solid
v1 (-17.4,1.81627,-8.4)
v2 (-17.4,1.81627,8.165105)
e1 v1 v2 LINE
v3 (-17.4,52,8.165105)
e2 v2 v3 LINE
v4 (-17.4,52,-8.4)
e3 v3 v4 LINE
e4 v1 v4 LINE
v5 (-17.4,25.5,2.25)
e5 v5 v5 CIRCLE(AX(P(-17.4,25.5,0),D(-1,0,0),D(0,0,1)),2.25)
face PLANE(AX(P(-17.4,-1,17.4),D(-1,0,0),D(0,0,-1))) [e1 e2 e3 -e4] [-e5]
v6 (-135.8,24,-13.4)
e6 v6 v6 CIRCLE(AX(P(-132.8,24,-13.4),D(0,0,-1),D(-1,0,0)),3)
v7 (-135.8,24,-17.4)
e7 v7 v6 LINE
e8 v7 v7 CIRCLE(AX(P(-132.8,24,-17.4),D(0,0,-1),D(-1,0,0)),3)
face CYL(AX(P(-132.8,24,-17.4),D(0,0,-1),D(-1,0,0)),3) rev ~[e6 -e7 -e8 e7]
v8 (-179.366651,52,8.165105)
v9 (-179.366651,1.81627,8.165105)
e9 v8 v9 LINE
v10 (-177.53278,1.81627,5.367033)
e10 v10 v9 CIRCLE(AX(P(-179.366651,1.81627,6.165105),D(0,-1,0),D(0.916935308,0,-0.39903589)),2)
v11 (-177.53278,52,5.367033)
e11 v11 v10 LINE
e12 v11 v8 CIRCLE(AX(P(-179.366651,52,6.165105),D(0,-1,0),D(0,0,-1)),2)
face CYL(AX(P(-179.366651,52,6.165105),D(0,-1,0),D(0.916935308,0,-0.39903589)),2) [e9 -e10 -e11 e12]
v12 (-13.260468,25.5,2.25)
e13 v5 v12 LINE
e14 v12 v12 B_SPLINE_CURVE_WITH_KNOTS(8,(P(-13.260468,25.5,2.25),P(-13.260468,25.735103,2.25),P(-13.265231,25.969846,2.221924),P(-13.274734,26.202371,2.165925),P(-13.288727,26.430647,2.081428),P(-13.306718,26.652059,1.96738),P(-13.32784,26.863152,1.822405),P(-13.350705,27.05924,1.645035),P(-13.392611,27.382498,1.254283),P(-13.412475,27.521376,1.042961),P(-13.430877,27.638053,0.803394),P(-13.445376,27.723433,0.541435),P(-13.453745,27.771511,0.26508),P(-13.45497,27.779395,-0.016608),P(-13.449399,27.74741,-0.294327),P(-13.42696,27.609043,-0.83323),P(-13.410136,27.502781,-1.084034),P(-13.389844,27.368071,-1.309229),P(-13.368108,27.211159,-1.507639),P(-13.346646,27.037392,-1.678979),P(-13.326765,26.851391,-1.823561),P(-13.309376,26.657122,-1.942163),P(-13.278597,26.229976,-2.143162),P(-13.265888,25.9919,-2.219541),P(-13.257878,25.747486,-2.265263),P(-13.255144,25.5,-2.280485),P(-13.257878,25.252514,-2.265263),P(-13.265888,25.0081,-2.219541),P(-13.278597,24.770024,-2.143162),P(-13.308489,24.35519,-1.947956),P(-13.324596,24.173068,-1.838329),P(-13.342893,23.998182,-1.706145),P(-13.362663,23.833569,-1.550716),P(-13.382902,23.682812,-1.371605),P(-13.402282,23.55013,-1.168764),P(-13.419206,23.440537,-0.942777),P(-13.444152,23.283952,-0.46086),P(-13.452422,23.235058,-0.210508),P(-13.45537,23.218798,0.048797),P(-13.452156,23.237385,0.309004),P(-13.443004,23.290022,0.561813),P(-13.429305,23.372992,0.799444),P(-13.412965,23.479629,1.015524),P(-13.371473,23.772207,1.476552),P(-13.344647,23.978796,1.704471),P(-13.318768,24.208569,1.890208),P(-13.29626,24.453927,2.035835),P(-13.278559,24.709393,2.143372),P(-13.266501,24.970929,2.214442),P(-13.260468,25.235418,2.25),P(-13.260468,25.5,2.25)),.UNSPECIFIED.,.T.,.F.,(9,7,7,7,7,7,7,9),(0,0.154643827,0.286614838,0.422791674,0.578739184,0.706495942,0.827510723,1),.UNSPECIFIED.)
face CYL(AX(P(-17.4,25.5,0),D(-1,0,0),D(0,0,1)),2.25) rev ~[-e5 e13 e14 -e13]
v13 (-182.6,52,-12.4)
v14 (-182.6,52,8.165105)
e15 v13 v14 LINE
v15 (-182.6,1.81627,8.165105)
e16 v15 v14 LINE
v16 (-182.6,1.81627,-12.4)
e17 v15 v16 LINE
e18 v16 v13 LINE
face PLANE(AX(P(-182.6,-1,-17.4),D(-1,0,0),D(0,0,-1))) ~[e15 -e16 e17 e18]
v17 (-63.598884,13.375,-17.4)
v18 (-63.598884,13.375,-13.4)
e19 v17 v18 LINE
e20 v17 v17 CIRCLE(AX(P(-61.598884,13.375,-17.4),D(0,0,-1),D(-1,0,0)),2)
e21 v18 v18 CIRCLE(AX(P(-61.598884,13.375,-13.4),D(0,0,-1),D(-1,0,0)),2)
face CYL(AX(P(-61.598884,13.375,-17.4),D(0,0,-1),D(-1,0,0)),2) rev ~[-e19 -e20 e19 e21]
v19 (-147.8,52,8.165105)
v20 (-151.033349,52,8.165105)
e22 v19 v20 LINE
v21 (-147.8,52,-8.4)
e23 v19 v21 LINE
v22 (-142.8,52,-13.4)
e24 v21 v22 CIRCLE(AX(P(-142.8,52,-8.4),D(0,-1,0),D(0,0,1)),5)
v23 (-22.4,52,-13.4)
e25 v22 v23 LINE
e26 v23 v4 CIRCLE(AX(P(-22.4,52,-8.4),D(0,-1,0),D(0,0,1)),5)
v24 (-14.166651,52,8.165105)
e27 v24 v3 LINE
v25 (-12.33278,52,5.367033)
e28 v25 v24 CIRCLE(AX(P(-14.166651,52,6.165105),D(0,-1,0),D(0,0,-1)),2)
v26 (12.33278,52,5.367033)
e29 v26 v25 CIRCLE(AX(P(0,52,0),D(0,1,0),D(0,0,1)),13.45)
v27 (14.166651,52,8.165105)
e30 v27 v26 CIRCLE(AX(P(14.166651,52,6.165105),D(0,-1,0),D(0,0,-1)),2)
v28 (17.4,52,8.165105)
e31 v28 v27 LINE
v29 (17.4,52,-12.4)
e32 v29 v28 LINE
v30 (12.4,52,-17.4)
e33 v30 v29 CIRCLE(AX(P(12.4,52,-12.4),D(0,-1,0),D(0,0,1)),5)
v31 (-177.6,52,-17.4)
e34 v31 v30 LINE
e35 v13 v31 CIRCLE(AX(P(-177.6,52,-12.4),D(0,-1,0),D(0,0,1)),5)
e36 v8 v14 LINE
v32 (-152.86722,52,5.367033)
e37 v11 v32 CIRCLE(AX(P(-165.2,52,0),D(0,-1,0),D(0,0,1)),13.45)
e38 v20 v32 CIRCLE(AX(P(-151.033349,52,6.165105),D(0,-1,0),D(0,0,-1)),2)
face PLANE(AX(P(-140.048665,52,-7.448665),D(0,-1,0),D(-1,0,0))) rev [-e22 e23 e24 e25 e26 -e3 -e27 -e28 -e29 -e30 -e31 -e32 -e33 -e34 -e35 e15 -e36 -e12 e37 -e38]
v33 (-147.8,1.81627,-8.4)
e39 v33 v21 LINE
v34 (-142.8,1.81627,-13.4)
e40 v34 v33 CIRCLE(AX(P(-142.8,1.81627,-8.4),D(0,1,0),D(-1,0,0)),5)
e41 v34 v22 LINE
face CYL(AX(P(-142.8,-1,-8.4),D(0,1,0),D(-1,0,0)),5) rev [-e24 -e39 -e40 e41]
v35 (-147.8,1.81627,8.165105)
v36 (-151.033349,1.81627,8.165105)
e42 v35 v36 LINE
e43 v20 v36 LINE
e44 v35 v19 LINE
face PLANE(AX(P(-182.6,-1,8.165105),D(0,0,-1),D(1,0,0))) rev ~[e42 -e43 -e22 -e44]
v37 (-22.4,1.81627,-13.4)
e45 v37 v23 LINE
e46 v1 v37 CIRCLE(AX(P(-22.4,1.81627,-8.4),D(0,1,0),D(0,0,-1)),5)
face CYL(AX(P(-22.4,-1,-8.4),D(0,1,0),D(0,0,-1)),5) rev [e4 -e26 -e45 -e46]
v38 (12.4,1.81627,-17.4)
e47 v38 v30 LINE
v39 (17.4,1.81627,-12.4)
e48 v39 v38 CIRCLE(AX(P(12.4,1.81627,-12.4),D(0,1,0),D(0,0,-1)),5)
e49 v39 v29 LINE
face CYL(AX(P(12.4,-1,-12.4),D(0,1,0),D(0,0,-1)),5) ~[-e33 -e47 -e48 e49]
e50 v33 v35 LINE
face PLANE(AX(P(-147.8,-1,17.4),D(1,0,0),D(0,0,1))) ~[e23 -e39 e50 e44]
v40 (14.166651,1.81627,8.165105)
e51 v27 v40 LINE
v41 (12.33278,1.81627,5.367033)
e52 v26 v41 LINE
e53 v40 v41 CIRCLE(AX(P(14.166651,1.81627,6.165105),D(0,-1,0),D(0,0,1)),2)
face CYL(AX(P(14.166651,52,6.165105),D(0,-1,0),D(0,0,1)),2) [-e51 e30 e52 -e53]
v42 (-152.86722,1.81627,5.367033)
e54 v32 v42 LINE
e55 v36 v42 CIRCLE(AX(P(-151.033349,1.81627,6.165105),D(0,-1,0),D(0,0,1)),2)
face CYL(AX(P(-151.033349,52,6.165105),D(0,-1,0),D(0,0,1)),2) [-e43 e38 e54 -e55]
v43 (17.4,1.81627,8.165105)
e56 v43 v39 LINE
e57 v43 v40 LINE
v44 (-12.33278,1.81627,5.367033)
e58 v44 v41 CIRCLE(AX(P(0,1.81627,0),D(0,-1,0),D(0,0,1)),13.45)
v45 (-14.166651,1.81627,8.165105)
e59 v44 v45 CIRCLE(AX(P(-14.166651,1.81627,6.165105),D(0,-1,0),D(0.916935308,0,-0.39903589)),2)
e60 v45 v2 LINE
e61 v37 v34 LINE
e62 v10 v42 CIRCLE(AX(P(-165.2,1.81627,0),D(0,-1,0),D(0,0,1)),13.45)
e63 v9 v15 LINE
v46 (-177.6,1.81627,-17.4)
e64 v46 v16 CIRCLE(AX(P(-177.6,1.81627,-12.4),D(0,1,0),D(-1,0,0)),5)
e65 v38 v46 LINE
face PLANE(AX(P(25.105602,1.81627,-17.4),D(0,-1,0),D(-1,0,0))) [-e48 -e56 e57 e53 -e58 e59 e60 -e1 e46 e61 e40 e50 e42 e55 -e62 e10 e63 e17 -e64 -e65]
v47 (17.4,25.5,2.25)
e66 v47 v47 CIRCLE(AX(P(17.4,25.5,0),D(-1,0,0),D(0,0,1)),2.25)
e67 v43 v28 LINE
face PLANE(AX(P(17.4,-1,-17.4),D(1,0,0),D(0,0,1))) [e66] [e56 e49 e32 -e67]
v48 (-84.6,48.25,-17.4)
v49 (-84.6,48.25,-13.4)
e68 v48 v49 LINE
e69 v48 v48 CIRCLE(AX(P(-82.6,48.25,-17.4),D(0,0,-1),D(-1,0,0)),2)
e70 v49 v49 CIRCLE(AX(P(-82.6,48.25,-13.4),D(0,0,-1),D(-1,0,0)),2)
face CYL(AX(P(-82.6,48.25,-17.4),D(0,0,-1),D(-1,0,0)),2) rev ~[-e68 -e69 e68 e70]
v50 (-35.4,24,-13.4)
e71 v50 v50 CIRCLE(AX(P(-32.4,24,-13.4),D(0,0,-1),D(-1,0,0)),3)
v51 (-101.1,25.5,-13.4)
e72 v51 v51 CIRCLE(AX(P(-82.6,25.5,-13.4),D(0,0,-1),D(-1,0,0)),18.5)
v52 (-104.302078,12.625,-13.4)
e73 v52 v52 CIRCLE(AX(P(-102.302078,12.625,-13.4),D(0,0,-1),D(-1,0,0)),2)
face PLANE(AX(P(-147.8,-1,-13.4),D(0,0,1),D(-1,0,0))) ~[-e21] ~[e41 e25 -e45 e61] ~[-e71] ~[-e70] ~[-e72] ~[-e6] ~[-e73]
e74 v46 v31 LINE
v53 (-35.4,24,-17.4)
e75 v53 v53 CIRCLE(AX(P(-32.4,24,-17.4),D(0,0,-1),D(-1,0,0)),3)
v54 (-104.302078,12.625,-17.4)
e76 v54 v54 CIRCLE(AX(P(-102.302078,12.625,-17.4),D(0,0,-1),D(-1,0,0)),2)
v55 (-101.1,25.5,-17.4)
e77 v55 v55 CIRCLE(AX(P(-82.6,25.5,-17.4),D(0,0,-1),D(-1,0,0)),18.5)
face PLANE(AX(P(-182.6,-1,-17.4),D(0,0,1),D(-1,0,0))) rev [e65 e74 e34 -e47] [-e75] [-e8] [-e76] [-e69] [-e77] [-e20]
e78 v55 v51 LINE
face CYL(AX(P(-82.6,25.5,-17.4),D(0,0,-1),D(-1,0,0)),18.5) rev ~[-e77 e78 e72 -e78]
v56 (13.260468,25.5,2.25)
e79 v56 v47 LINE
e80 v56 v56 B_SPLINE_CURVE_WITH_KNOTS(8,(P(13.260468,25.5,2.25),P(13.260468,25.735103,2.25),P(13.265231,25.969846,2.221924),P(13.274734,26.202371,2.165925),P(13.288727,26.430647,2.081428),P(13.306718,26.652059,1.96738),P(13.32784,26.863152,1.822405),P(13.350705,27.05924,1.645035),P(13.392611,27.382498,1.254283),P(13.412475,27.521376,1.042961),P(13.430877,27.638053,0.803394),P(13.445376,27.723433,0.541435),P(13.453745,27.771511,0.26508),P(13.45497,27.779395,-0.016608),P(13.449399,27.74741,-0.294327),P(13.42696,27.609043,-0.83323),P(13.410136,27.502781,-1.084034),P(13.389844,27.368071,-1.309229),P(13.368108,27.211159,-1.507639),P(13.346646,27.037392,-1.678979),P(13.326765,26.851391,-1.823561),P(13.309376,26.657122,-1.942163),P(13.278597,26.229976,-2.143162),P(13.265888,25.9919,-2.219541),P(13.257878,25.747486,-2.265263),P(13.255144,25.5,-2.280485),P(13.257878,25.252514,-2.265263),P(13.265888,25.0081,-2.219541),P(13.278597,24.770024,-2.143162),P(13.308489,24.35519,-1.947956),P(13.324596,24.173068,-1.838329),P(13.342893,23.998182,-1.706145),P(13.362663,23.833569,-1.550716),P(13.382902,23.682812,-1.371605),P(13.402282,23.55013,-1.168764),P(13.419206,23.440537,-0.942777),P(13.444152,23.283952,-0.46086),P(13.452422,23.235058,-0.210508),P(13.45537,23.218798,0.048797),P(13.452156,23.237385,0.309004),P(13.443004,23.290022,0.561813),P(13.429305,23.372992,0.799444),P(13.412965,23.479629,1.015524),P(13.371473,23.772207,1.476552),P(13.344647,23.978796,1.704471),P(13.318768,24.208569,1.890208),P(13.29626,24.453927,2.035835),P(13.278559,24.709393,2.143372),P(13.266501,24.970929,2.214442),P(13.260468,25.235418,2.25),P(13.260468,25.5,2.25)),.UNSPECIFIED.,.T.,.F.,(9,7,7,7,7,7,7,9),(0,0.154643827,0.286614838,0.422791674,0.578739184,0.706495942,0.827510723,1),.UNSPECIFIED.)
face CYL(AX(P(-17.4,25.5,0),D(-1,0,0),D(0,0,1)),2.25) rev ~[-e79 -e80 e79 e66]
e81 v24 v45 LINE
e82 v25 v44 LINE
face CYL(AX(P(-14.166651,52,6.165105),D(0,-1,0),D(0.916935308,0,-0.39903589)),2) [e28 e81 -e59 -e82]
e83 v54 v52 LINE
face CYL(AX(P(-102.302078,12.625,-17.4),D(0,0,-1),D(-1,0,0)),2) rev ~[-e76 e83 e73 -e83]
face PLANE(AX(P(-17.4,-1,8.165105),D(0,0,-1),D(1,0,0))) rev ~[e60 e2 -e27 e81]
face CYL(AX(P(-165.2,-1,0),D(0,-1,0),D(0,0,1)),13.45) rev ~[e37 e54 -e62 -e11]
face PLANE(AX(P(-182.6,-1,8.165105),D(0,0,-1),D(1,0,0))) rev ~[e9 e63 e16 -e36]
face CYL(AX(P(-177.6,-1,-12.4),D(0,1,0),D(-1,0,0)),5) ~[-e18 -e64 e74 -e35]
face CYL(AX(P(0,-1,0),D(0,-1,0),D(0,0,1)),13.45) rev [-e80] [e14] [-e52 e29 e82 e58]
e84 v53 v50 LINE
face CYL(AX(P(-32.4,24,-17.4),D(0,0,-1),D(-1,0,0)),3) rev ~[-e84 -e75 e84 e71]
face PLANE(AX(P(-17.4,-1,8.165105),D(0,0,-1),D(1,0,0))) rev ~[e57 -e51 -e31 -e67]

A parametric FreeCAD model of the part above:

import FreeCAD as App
import Part
import Sketcher
Q = App.Units.Quantity


def edges_at(feature, points):
    """Names of the edges that pass closest to the given points."""
    edges = feature.Shape.Edges
    near = lambda p: min(range(len(edges)), key=lambda i: edges[i].distToShape(Part.Vertex(*p))[0])
    return sorted({f"Edge{near(p) + 1}" for p in points})

doc = App.newDocument("Part")
body = doc.addObject("PartDesign::Body", "Body")

# Sketch on XZ plane
sketch1 = body.newObject("Sketcher::SketchObject", "Sketch")
sketch1.AttachmentSupport = (doc.getObject("XZ_Plane"), [""])
sketch1.MapMode = "FlatFace"
sketch1.AttachmentOffset = App.Placement(App.Vector(0, 0, 1), App.Rotation())
sketch1.addGeometry(Part.LineSegment(App.Vector(17.4, -17.4, 0), App.Vector(-82.6, -17.4, 0)), False)
sketch1.addGeometry(Part.LineSegment(App.Vector(-82.6, -17.4, 0), App.Vector(-82.6, -13.4, 0)), False)
sketch1.addGeometry(Part.LineSegment(App.Vector(-82.6, -13.4, 0), App.Vector(-17.4, -13.4, 0)), False)
sketch1.addGeometry(Part.LineSegment(App.Vector(-17.4, -13.4, 0), App.Vector(-17.4, 17.4, 0)), False)
sketch1.addGeometry(Part.LineSegment(App.Vector(-17.4, 17.4, 0), App.Vector(17.4, 17.4, 0)), False)
sketch1.addGeometry(Part.LineSegment(App.Vector(17.4, 17.4, 0), App.Vector(17.4, -17.4, 0)), False)
sketch1.addGeometry(Part.Circle(App.Vector(0, 0, 0), App.Vector(0, 0, 1), 13.4), False)
sketch1.addConstraint(Sketcher.Constraint("Coincident", 0, 2, 1, 1))
sketch1.addConstraint(Sketcher.Constraint("Coincident", 1, 2, 2, 1))
sketch1.addConstraint(Sketcher.Constraint("Coincident", 2, 2, 3, 1))
sketch1.addConstraint(Sketcher.Constraint("Coincident", 3, 2, 4, 1))
sketch1.addConstraint(Sketcher.Constraint("Coincident", 4, 2, 5, 1))
sketch1.addConstraint(Sketcher.Constraint("Coincident", 5, 2, 0, 1))
sketch1.addConstraint(Sketcher.Constraint("Horizontal", 0))
sketch1.addConstraint(Sketcher.Constraint("Vertical", 1))
sketch1.addConstraint(Sketcher.Constraint("Horizontal", 2))
sketch1.addConstraint(Sketcher.Constraint("Vertical", 3))
sketch1.addConstraint(Sketcher.Constraint("Horizontal", 4))
sketch1.addConstraint(Sketcher.Constraint("Vertical", 5))
sketch1.addConstraint(Sketcher.Constraint("Coincident", 6, 3, -1, 1))
sketch1.addConstraint(Sketcher.Constraint("Symmetric", 3, 2, 5, 2, -1, 1))
sketch1.addConstraint(Sketcher.Constraint("Equal", 4, 5))
sketch1.addConstraint(Sketcher.Constraint("Diameter", 6, Q("26.9 mm")))
sketch1.addConstraint(Sketcher.Constraint("DistanceX", 0, 2, 0, 1, Q("100 mm")))
sketch1.addConstraint(Sketcher.Constraint("DistanceY", 1, 1, 1, 2, Q("4 mm")))
sketch1.addConstraint(Sketcher.Constraint("DistanceX", 2, 1, 2, 2, Q("65.2 mm")))
pad1 = body.newObject("PartDesign::Pad", "Pad")
pad1.Profile = sketch1
pad1.Length = 53
pad1.Reversed = True
doc.recompute()

datumplane = body.newObject("PartDesign::Plane", "DatumPlane")
datumplane.AttachmentSupport = (doc.getObject("YZ_Plane"), [""])
datumplane.MapMode = "FlatFace"
datumplane.AttachmentOffset = App.Placement(App.Vector(0, 0, -82.6), App.Rotation())
mirrored = body.newObject("PartDesign::Mirrored", "Mirrored")
mirrored.Originals = [pad1]
mirrored.MirrorPlane = (datumplane, [""])
body.Tip = mirrored
doc.recompute()

fillet = body.newObject("PartDesign::Fillet", "Fillet")
fillet.Base = (mirrored, edges_at(mirrored, [
    (17.4, 25.5, 17.4),
    (-17.4, 25.5, 17.4),
    (-182.6, 25.5, 17.4),
    (-147.8, 25.5, 17.4),
]))
fillet.Radius = 3
doc.recompute()

fillet2 = body.newObject("PartDesign::Fillet", "Fillet001")
fillet2.Base = (fillet, edges_at(fillet, [
    (-17.4, 25.5, -13.4),
    (17.4, 25.5, -17.4),
    (-182.6, 25.5, -17.4),
    (-147.8, 25.5, -13.4),
]))
fillet2.Radius = 5

# Sketch on YZ plane
sketch2 = body.newObject("Sketcher::SketchObject", "Sketch001")
sketch2.AttachmentSupport = (doc.getObject("YZ_Plane"), [""])
sketch2.MapMode = "FlatFace"
sketch2.AttachmentOffset = App.Placement(App.Vector(0, 0, -17.4), App.Rotation())
sketch2.addGeometry(Part.Circle(App.Vector(25.5, 0, 0), App.Vector(0, 0, 1), 2.2), False)
sketch2.addConstraint(Sketcher.Constraint("PointOnObject", 0, 3, -1))
sketch2.addConstraint(Sketcher.Constraint("Diameter", 0, Q("4.5 mm")))
sketch2.addConstraint(Sketcher.Constraint("DistanceX", -1, 1, 0, 3, Q("25.5 mm")))
pocket1 = body.newObject("PartDesign::Pocket", "Pocket")
pocket1.Profile = sketch2
pocket1.Type = "ThroughAll"
pocket1.Reversed = True

# Sketch on XZ plane
sketch3 = body.newObject("Sketcher::SketchObject", "Sketch002")
sketch3.AttachmentSupport = (doc.getObject("XZ_Plane"), [""])
sketch3.MapMode = "FlatFace"
sketch3.AttachmentOffset = App.Placement(App.Vector(0, 0, 1), App.Rotation())
sketch3.addGeometry(Part.LineSegment(App.Vector(17, 18, 0), App.Vector(-17, 18, 0)), False)
sketch3.addGeometry(Part.LineSegment(App.Vector(-17, 18, 0), App.Vector(-17, 8, 0)), False)
sketch3.addGeometry(Part.LineSegment(App.Vector(-17, 8, 0), App.Vector(17, 8, 0)), False)
sketch3.addGeometry(Part.LineSegment(App.Vector(17, 8, 0), App.Vector(17, 18, 0)), False)
sketch3.addGeometry(Part.LineSegment(App.Vector(-183, 18, 0), App.Vector(-183, 8, 0)), False)
sketch3.addGeometry(Part.LineSegment(App.Vector(-183, 8, 0), App.Vector(-148, 8, 0)), False)
sketch3.addGeometry(Part.LineSegment(App.Vector(-148, 8, 0), App.Vector(-148, 18, 0)), False)
sketch3.addGeometry(Part.LineSegment(App.Vector(-148, 18, 0), App.Vector(-183, 18, 0)), False)
sketch3.addConstraint(Sketcher.Constraint("Coincident", 0, 2, 1, 1))
sketch3.addConstraint(Sketcher.Constraint("Coincident", 1, 2, 2, 1))
sketch3.addConstraint(Sketcher.Constraint("Coincident", 2, 2, 3, 1))
sketch3.addConstraint(Sketcher.Constraint("Coincident", 3, 2, 0, 1))
sketch3.addConstraint(Sketcher.Constraint("Coincident", 4, 2, 5, 1))
sketch3.addConstraint(Sketcher.Constraint("Coincident", 5, 2, 6, 1))
sketch3.addConstraint(Sketcher.Constraint("Coincident", 6, 2, 7, 1))
sketch3.addConstraint(Sketcher.Constraint("Coincident", 7, 2, 4, 1))
sketch3.addConstraint(Sketcher.Constraint("Horizontal", 0))
sketch3.addConstraint(Sketcher.Constraint("Vertical", 1))
sketch3.addConstraint(Sketcher.Constraint("Horizontal", 2))
sketch3.addConstraint(Sketcher.Constraint("Vertical", 3))
sketch3.addConstraint(Sketcher.Constraint("Vertical", 4))
sketch3.addConstraint(Sketcher.Constraint("Horizontal", 5))
sketch3.addConstraint(Sketcher.Constraint("Vertical", 6))
sketch3.addConstraint(Sketcher.Constraint("Horizontal", 7))
sketch3.addConstraint(Sketcher.Constraint("Horizontal", 2, 2, 4, 2))
sketch3.addConstraint(Sketcher.Constraint("Horizontal", 3, 2, 6, 2))
sketch3.addConstraint(Sketcher.Constraint("Equal", 2, 5))
sketch3.addConstraint(Sketcher.Constraint("DistanceX", 0, 2, 0, 1, Q("34.8 mm")))
sketch3.addConstraint(Sketcher.Constraint("DistanceX", 4, 2, 2, 2, Q("200 mm")))
sketch3.addConstraint(Sketcher.Constraint("DistanceX", 0, 2, -1, 1, Q("17.4 mm")))
sketch3.addConstraint(Sketcher.Constraint("DistanceY", 1, 2, 1, 1, Q("10.198498 mm")))
sketch3.addConstraint(Sketcher.Constraint("DistanceY", -1, 1, 0, 2, Q("18.363603 mm")))
pocket2 = body.newObject("PartDesign::Pocket", "Pocket001")
pocket2.Profile = sketch3
pocket2.Length = 61
doc.recompute()

fillet3 = body.newObject("PartDesign::Fillet", "Fillet002")
fillet3.Base = (pocket2, edges_at(pocket2, [
    (-154.512, 25.5, 8.165),
    (-175.888, 25.5, 8.165),
    (10.688, 25.5, 8.165),
    (-10.688, 25.5, 8.165),
]))
fillet3.Radius = 2

# Sketch on XY plane
sketch4 = body.newObject("Sketcher::SketchObject", "Sketch003")
sketch4.AttachmentSupport = (doc.getObject("XY_Plane"), [""])
sketch4.MapMode = "FlatFace"
sketch4.AttachmentOffset = App.Placement(App.Vector(0, 0, -17.4), App.Rotation())
sketch4.addGeometry(Part.Circle(App.Vector(-82.6, 25.5, 0), App.Vector(0, 0, 1), 18.5), False)
sketch4.addGeometry(Part.Circle(App.Vector(-82.6, 48.2, 0), App.Vector(0, 0, 1), 2), False)
sketch4.addGeometry(Part.Circle(App.Vector(-102.3, 12.6, 0), App.Vector(0, 0, 1), 2), False)
sketch4.addGeometry(Part.Circle(App.Vector(-61.6, 13.4, 0), App.Vector(0, 0, 1), 2), False)
sketch4.addConstraint(Sketcher.Constraint("Equal", 1, 2))
sketch4.addConstraint(Sketcher.Constraint("Equal", 2, 3))
sketch4.addConstraint(Sketcher.Constraint("Vertical", 0, 3, 1, 3))
sketch4.addConstraint(Sketcher.Constraint("Diameter", 0, Q("37 mm")))
sketch4.addConstraint(Sketcher.Constraint("Diameter", 1, Q("4 mm")))
sketch4.addConstraint(Sketcher.Constraint("DistanceX", 0, 3, -1, 1, Q("82.6 mm")))
sketch4.addConstraint(Sketcher.Constraint("DistanceY", -1, 1, 0, 3, Q("25.5 mm")))
sketch4.addConstraint(Sketcher.Constraint("DistanceY", -1, 1, 1, 3, Q("48.25 mm")))
sketch4.addConstraint(Sketcher.Constraint("DistanceY", 2, 3, 3, 3, Q("0.75 mm")))
sketch4.addConstraint(Sketcher.Constraint("DistanceY", -1, 1, 2, 3, Q("12.625 mm")))
sketch4.addConstraint(Sketcher.Constraint("DistanceX", 2, 3, -1, 1, Q("102.302078 mm")))
sketch4.addConstraint(Sketcher.Constraint("DistanceX", 3, 3, -1, 1, Q("61.598884 mm")))
pocket3 = body.newObject("PartDesign::Pocket", "Pocket002")
pocket3.Profile = sketch4
pocket3.Length = 61
pocket3.Reversed = True

# Sketch on XY plane
sketch5 = body.newObject("Sketcher::SketchObject", "Sketch004")
sketch5.AttachmentSupport = (doc.getObject("XY_Plane"), [""])
sketch5.MapMode = "FlatFace"
sketch5.AttachmentOffset = App.Placement(App.Vector(0, 0, -17.4), App.Rotation())
sketch5.addGeometry(Part.Circle(App.Vector(-132.8, 24, 0), App.Vector(0, 0, 1), 3), False)
sketch5.addGeometry(Part.Circle(App.Vector(-32.4, 24, 0), App.Vector(0, 0, 1), 3), False)
sketch5.addConstraint(Sketcher.Constraint("Equal", 0, 1))
sketch5.addConstraint(Sketcher.Constraint("Horizontal", 0, 3, 1, 3))
sketch5.addConstraint(Sketcher.Constraint("Diameter", 0, Q("6 mm")))
sketch5.addConstraint(Sketcher.Constraint("DistanceY", -1, 1, 0, 3, Q("24 mm")))
sketch5.addConstraint(Sketcher.Constraint("DistanceX", 0, 3, -1, 1, Q("132.8 mm")))
sketch5.addConstraint(Sketcher.Constraint("DistanceX", 1, 3, -1, 1, Q("32.4 mm")))
pocket4 = body.newObject("PartDesign::Pocket", "Pocket003")
pocket4.Profile = sketch5
pocket4.Length = 41
pocket4.Reversed = True

# Sketch on XY plane
sketch6 = body.newObject("Sketcher::SketchObject", "Sketch005")
sketch6.AttachmentSupport = (doc.getObject("XY_Plane"), [""])
sketch6.MapMode = "FlatFace"
sketch6.AttachmentOffset = App.Placement(App.Vector(0, 0, -17.4), App.Rotation())
sketch6.addGeometry(Part.LineSegment(App.Vector(25, 2, 0), App.Vector(25, -12, 0)), False)
sketch6.addGeometry(Part.LineSegment(App.Vector(25, -12, 0), App.Vector(-187, -12, 0)), False)
sketch6.addGeometry(Part.LineSegment(App.Vector(-187, -12, 0), App.Vector(-187, 2, 0)), False)
sketch6.addGeometry(Part.LineSegment(App.Vector(-187, 2, 0), App.Vector(25, 2, 0)), False)
sketch6.addConstraint(Sketcher.Constraint("Coincident", 0, 2, 1, 1))
sketch6.addConstraint(Sketcher.Constraint("Coincident", 1, 2, 2, 1))
sketch6.addConstraint(Sketcher.Constraint("Coincident", 2, 2, 3, 1))
sketch6.addConstraint(Sketcher.Constraint("Coincident", 3, 2, 0, 1))
sketch6.addConstraint(Sketcher.Constraint("Vertical", 0))
sketch6.addConstraint(Sketcher.Constraint("Horizontal", 1))
sketch6.addConstraint(Sketcher.Constraint("Vertical", 2))
sketch6.addConstraint(Sketcher.Constraint("Horizontal", 3))
sketch6.addConstraint(Sketcher.Constraint("DistanceX", 1, 2, 1, 1, Q("211.81128 mm")))
sketch6.addConstraint(Sketcher.Constraint("DistanceY", 0, 2, 0, 1, Q("13.838629 mm")))
sketch6.addConstraint(Sketcher.Constraint("DistanceY", 0, 2, -1, 1, Q("12.022359 mm")))
sketch6.addConstraint(Sketcher.Constraint("DistanceX", -1, 1, 0, 2, Q("25.105602 mm")))
pocket5 = body.newObject("PartDesign::Pocket", "Pocket004")
pocket5.Profile = sketch6
pocket5.Length = 41
pocket5.Reversed = True

doc.recompute()
